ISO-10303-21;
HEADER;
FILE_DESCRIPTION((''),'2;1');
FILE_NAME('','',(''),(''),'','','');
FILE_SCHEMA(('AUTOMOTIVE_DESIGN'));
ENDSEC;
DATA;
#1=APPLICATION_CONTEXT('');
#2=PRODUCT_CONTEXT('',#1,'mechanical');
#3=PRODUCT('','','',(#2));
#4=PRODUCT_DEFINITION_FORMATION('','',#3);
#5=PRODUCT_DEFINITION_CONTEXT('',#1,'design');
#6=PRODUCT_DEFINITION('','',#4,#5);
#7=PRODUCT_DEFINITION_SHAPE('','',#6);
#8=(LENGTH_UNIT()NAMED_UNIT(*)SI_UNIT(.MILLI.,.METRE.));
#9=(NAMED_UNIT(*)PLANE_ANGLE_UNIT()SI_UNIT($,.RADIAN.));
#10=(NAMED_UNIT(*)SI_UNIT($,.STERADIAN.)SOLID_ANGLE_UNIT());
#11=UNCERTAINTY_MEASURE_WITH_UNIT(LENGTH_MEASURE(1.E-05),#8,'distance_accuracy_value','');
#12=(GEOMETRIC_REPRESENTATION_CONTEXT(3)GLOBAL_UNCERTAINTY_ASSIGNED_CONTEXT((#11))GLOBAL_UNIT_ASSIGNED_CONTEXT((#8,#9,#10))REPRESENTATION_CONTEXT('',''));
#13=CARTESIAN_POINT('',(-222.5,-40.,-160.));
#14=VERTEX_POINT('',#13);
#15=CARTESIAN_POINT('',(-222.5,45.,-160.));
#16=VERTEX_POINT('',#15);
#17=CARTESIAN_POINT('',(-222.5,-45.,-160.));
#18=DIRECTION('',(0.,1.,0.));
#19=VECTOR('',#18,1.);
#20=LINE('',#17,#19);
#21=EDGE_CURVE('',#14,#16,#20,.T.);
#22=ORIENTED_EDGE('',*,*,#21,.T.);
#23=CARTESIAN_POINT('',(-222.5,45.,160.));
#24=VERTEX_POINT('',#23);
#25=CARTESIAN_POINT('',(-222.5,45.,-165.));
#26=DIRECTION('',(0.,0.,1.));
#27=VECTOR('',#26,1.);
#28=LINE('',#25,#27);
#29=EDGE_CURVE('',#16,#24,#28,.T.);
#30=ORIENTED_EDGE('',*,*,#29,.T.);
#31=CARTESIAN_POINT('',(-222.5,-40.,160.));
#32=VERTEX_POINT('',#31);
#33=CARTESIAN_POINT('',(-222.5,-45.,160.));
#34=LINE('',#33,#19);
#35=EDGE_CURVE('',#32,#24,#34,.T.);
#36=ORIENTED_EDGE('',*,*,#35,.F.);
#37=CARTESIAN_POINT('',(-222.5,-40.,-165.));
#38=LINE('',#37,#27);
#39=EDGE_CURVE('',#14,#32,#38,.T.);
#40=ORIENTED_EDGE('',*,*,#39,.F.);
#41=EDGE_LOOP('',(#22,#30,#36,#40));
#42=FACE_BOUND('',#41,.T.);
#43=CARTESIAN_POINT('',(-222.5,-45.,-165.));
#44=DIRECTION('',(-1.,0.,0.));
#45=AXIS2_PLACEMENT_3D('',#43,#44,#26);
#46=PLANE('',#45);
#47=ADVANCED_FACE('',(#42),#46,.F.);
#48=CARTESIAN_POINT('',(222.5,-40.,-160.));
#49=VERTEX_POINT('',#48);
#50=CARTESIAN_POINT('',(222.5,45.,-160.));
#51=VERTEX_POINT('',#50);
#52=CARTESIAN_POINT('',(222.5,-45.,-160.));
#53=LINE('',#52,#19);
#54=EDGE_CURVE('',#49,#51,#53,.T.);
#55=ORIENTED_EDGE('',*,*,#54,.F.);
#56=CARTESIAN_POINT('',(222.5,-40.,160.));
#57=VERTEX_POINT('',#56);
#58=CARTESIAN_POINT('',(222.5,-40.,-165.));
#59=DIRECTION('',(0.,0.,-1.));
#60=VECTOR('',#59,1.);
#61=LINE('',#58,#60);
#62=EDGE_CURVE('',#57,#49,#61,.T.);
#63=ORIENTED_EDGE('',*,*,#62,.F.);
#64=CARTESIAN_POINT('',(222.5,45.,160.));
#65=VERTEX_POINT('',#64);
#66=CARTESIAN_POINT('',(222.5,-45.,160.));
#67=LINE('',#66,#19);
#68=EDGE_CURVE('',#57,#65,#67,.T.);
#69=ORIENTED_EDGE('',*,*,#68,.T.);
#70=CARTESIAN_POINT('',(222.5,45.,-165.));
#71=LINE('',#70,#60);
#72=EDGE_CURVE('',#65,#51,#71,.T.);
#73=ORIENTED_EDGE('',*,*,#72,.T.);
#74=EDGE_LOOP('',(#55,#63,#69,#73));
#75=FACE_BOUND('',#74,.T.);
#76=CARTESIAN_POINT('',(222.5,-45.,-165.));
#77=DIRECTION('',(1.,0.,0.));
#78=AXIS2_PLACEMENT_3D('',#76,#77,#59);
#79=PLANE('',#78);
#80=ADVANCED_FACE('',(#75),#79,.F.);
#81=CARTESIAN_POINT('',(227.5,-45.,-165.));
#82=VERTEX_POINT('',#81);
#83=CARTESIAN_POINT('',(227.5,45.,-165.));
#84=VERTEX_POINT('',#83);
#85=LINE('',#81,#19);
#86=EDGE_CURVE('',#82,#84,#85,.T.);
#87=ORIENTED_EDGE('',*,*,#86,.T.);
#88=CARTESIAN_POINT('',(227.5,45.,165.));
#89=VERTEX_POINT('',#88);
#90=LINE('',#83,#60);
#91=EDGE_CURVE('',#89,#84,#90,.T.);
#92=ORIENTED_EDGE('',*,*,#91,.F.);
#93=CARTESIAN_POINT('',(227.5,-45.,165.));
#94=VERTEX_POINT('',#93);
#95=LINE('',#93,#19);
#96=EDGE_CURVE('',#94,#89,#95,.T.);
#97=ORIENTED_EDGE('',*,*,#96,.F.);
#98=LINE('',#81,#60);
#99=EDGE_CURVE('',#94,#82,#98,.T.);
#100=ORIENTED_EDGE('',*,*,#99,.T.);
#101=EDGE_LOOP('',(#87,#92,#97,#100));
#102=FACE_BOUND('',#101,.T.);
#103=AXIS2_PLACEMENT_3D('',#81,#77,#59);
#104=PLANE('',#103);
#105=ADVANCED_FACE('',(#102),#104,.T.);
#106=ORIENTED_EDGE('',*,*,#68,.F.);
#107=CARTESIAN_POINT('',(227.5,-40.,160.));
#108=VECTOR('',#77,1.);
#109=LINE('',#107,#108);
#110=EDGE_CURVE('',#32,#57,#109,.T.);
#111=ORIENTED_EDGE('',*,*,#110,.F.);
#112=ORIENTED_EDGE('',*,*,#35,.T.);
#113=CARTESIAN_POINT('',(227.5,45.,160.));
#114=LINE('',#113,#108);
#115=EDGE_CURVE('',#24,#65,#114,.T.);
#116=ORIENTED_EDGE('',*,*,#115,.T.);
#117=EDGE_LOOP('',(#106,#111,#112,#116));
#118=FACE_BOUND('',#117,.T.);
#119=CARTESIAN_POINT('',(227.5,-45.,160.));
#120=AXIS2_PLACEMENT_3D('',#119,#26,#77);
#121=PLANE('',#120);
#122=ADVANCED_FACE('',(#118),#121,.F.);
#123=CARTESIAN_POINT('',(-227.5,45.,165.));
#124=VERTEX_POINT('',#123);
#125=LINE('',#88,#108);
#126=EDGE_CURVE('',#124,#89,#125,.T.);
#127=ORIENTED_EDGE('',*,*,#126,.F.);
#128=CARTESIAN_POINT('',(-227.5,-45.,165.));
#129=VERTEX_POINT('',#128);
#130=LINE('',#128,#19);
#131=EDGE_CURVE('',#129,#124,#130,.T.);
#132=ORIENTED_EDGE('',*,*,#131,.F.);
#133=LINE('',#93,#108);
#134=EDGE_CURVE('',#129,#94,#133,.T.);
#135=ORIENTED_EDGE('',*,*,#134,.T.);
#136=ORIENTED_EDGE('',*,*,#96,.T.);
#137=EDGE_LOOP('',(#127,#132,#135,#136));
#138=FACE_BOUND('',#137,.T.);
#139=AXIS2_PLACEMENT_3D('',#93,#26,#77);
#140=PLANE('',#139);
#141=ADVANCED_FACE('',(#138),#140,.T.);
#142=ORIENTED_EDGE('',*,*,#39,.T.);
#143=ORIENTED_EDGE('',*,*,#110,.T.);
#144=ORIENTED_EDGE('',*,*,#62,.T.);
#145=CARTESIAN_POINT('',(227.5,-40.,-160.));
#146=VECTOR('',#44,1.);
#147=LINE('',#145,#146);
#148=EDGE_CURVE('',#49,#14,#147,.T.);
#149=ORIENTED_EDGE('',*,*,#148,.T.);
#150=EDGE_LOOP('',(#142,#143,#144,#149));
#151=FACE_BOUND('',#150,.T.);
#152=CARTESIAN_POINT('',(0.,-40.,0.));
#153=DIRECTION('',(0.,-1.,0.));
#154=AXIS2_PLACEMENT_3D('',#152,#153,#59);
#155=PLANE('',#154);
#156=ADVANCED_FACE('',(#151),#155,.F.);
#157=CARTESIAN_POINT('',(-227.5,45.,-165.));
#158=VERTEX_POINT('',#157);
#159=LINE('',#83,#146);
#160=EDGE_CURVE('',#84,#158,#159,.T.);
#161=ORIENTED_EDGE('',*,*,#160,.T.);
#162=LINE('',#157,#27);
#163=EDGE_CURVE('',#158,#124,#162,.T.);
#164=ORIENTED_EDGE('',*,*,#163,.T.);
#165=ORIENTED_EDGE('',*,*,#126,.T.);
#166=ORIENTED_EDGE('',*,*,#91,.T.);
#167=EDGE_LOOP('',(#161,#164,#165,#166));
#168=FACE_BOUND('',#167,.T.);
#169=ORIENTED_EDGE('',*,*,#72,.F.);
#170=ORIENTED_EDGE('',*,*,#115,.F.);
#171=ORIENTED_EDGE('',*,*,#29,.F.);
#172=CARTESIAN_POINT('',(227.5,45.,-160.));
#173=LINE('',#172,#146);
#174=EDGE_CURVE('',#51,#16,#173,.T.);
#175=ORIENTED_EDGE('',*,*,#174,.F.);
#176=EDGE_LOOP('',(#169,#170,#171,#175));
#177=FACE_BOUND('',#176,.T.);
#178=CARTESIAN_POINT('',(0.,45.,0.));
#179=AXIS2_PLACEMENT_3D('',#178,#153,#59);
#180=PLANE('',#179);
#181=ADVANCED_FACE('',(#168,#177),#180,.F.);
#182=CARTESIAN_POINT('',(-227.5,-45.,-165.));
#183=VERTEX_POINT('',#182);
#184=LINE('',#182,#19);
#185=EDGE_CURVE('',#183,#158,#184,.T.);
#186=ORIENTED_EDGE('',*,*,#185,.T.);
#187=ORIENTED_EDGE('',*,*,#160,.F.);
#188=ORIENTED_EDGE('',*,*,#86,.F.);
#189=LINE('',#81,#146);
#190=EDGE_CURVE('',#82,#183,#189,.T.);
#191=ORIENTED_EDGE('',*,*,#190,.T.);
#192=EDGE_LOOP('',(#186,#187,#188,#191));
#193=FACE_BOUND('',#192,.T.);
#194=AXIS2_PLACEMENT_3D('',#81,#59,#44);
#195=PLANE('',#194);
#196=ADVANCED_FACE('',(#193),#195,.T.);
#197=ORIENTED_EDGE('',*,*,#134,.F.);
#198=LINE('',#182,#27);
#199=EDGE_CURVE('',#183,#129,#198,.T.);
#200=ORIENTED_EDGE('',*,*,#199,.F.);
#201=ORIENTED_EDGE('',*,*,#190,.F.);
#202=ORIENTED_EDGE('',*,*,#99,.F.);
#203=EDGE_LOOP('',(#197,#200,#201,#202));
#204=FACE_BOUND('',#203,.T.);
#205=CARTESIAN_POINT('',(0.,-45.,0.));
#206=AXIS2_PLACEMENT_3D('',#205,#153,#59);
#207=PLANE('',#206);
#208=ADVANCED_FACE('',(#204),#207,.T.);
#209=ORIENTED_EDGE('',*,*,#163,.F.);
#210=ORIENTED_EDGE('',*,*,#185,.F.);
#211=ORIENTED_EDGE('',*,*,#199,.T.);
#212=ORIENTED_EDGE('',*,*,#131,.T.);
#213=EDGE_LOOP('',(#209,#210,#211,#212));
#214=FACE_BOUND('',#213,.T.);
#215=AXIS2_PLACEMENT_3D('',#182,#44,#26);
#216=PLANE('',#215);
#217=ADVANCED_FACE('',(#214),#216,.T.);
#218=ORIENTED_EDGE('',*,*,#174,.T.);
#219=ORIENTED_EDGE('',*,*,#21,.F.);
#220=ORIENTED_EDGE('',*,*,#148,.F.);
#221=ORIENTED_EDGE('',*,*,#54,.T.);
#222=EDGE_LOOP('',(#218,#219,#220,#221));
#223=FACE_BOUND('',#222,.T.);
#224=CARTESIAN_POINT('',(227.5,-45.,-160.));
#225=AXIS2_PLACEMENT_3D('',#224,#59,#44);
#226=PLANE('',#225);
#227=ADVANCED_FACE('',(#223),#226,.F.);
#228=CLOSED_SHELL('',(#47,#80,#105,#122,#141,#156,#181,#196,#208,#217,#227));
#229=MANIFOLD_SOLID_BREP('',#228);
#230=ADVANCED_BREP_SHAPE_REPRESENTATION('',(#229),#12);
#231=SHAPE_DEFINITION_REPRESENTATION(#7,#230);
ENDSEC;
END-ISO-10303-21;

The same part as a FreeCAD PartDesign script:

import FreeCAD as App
import Part
import Sketcher
Q = App.Units.Quantity


def faces_at(feature, points):
    """Names of the faces that lie closest to the given points."""
    faces = feature.Shape.Faces
    near = lambda p: min(range(len(faces)), key=lambda i: faces[i].distToShape(Part.Vertex(*p))[0])
    return sorted({f"Face{near(p) + 1}" for p in points})

doc = App.newDocument("Part")
params = doc.addObject("Spreadsheet::Sheet", "Params")
for row, (alias, value) in enumerate([
    ("sketch1_width", "455 mm"),
    ("sketch1_height", "330 mm"),
    ("pad1_length", "90 mm"),
    ("thickness_wall", "5 mm"),
], start=1):
    params.set(f"A{row}", alias)
    params.set(f"B{row}", "=" + value)
    params.setAlias(f"B{row}", alias)

body = doc.addObject("PartDesign::Body", "Body")

# Sketch on XZ plane
sketch1 = doc.addObject("Sketcher::SketchObject", "Sketch")
body.addObject(sketch1)
sketch1.AttachmentSupport = (doc.XZ_Plane, [""])
sketch1.MapMode = "FlatFace"
sketch1.addGeometry([
    Part.LineSegment(App.Vector(-228, -165, 0), App.Vector(-228, 165, 0)),
    Part.LineSegment(App.Vector(-228, 165, 0), App.Vector(228, 165, 0)),
    Part.LineSegment(App.Vector(228, 165, 0), App.Vector(228, -165, 0)),
    Part.LineSegment(App.Vector(228, -165, 0), App.Vector(-228, -165, 0)),
], False)
sketch1.addConstraint([
    Sketcher.Constraint("Coincident", 0, 2, 1, 1),
    Sketcher.Constraint("Coincident", 1, 2, 2, 1),
    Sketcher.Constraint("Coincident", 2, 2, 3, 1),
    Sketcher.Constraint("Coincident", 3, 2, 0, 1),
    Sketcher.Constraint("Vertical", 0),
    Sketcher.Constraint("Horizontal", 1),
    Sketcher.Constraint("Vertical", 2),
    Sketcher.Constraint("Horizontal", 3),
    Sketcher.Constraint("Symmetric", 0, 2, 2, 2, -1, 1),
    Sketcher.Constraint("DistanceX", 1, 1, 1, 2, Q("455 mm")),
    Sketcher.Constraint("DistanceY", 0, 1, 0, 2, Q("330 mm")),
])
sketch1.setExpression("Constraints[9]", "Params.sketch1_width")
sketch1.setExpression("Constraints[10]", "Params.sketch1_height")
pad1 = doc.addObject("PartDesign::Pad", "Pad")
body.addObject(pad1)
pad1.Profile = sketch1
pad1.setExpression("Length", "Params.pad1_length")
pad1.Midplane = True
doc.recompute()

thickness = doc.addObject("PartDesign::Thickness", "Thickness")
body.addObject(thickness)
thickness.Base = (pad1, faces_at(pad1, [(0, 45, 0)]))
thickness.setExpression("Value", "Params.thickness_wall")
thickness.Reversed = True
thickness.Join = "Intersection"

doc.recompute()
